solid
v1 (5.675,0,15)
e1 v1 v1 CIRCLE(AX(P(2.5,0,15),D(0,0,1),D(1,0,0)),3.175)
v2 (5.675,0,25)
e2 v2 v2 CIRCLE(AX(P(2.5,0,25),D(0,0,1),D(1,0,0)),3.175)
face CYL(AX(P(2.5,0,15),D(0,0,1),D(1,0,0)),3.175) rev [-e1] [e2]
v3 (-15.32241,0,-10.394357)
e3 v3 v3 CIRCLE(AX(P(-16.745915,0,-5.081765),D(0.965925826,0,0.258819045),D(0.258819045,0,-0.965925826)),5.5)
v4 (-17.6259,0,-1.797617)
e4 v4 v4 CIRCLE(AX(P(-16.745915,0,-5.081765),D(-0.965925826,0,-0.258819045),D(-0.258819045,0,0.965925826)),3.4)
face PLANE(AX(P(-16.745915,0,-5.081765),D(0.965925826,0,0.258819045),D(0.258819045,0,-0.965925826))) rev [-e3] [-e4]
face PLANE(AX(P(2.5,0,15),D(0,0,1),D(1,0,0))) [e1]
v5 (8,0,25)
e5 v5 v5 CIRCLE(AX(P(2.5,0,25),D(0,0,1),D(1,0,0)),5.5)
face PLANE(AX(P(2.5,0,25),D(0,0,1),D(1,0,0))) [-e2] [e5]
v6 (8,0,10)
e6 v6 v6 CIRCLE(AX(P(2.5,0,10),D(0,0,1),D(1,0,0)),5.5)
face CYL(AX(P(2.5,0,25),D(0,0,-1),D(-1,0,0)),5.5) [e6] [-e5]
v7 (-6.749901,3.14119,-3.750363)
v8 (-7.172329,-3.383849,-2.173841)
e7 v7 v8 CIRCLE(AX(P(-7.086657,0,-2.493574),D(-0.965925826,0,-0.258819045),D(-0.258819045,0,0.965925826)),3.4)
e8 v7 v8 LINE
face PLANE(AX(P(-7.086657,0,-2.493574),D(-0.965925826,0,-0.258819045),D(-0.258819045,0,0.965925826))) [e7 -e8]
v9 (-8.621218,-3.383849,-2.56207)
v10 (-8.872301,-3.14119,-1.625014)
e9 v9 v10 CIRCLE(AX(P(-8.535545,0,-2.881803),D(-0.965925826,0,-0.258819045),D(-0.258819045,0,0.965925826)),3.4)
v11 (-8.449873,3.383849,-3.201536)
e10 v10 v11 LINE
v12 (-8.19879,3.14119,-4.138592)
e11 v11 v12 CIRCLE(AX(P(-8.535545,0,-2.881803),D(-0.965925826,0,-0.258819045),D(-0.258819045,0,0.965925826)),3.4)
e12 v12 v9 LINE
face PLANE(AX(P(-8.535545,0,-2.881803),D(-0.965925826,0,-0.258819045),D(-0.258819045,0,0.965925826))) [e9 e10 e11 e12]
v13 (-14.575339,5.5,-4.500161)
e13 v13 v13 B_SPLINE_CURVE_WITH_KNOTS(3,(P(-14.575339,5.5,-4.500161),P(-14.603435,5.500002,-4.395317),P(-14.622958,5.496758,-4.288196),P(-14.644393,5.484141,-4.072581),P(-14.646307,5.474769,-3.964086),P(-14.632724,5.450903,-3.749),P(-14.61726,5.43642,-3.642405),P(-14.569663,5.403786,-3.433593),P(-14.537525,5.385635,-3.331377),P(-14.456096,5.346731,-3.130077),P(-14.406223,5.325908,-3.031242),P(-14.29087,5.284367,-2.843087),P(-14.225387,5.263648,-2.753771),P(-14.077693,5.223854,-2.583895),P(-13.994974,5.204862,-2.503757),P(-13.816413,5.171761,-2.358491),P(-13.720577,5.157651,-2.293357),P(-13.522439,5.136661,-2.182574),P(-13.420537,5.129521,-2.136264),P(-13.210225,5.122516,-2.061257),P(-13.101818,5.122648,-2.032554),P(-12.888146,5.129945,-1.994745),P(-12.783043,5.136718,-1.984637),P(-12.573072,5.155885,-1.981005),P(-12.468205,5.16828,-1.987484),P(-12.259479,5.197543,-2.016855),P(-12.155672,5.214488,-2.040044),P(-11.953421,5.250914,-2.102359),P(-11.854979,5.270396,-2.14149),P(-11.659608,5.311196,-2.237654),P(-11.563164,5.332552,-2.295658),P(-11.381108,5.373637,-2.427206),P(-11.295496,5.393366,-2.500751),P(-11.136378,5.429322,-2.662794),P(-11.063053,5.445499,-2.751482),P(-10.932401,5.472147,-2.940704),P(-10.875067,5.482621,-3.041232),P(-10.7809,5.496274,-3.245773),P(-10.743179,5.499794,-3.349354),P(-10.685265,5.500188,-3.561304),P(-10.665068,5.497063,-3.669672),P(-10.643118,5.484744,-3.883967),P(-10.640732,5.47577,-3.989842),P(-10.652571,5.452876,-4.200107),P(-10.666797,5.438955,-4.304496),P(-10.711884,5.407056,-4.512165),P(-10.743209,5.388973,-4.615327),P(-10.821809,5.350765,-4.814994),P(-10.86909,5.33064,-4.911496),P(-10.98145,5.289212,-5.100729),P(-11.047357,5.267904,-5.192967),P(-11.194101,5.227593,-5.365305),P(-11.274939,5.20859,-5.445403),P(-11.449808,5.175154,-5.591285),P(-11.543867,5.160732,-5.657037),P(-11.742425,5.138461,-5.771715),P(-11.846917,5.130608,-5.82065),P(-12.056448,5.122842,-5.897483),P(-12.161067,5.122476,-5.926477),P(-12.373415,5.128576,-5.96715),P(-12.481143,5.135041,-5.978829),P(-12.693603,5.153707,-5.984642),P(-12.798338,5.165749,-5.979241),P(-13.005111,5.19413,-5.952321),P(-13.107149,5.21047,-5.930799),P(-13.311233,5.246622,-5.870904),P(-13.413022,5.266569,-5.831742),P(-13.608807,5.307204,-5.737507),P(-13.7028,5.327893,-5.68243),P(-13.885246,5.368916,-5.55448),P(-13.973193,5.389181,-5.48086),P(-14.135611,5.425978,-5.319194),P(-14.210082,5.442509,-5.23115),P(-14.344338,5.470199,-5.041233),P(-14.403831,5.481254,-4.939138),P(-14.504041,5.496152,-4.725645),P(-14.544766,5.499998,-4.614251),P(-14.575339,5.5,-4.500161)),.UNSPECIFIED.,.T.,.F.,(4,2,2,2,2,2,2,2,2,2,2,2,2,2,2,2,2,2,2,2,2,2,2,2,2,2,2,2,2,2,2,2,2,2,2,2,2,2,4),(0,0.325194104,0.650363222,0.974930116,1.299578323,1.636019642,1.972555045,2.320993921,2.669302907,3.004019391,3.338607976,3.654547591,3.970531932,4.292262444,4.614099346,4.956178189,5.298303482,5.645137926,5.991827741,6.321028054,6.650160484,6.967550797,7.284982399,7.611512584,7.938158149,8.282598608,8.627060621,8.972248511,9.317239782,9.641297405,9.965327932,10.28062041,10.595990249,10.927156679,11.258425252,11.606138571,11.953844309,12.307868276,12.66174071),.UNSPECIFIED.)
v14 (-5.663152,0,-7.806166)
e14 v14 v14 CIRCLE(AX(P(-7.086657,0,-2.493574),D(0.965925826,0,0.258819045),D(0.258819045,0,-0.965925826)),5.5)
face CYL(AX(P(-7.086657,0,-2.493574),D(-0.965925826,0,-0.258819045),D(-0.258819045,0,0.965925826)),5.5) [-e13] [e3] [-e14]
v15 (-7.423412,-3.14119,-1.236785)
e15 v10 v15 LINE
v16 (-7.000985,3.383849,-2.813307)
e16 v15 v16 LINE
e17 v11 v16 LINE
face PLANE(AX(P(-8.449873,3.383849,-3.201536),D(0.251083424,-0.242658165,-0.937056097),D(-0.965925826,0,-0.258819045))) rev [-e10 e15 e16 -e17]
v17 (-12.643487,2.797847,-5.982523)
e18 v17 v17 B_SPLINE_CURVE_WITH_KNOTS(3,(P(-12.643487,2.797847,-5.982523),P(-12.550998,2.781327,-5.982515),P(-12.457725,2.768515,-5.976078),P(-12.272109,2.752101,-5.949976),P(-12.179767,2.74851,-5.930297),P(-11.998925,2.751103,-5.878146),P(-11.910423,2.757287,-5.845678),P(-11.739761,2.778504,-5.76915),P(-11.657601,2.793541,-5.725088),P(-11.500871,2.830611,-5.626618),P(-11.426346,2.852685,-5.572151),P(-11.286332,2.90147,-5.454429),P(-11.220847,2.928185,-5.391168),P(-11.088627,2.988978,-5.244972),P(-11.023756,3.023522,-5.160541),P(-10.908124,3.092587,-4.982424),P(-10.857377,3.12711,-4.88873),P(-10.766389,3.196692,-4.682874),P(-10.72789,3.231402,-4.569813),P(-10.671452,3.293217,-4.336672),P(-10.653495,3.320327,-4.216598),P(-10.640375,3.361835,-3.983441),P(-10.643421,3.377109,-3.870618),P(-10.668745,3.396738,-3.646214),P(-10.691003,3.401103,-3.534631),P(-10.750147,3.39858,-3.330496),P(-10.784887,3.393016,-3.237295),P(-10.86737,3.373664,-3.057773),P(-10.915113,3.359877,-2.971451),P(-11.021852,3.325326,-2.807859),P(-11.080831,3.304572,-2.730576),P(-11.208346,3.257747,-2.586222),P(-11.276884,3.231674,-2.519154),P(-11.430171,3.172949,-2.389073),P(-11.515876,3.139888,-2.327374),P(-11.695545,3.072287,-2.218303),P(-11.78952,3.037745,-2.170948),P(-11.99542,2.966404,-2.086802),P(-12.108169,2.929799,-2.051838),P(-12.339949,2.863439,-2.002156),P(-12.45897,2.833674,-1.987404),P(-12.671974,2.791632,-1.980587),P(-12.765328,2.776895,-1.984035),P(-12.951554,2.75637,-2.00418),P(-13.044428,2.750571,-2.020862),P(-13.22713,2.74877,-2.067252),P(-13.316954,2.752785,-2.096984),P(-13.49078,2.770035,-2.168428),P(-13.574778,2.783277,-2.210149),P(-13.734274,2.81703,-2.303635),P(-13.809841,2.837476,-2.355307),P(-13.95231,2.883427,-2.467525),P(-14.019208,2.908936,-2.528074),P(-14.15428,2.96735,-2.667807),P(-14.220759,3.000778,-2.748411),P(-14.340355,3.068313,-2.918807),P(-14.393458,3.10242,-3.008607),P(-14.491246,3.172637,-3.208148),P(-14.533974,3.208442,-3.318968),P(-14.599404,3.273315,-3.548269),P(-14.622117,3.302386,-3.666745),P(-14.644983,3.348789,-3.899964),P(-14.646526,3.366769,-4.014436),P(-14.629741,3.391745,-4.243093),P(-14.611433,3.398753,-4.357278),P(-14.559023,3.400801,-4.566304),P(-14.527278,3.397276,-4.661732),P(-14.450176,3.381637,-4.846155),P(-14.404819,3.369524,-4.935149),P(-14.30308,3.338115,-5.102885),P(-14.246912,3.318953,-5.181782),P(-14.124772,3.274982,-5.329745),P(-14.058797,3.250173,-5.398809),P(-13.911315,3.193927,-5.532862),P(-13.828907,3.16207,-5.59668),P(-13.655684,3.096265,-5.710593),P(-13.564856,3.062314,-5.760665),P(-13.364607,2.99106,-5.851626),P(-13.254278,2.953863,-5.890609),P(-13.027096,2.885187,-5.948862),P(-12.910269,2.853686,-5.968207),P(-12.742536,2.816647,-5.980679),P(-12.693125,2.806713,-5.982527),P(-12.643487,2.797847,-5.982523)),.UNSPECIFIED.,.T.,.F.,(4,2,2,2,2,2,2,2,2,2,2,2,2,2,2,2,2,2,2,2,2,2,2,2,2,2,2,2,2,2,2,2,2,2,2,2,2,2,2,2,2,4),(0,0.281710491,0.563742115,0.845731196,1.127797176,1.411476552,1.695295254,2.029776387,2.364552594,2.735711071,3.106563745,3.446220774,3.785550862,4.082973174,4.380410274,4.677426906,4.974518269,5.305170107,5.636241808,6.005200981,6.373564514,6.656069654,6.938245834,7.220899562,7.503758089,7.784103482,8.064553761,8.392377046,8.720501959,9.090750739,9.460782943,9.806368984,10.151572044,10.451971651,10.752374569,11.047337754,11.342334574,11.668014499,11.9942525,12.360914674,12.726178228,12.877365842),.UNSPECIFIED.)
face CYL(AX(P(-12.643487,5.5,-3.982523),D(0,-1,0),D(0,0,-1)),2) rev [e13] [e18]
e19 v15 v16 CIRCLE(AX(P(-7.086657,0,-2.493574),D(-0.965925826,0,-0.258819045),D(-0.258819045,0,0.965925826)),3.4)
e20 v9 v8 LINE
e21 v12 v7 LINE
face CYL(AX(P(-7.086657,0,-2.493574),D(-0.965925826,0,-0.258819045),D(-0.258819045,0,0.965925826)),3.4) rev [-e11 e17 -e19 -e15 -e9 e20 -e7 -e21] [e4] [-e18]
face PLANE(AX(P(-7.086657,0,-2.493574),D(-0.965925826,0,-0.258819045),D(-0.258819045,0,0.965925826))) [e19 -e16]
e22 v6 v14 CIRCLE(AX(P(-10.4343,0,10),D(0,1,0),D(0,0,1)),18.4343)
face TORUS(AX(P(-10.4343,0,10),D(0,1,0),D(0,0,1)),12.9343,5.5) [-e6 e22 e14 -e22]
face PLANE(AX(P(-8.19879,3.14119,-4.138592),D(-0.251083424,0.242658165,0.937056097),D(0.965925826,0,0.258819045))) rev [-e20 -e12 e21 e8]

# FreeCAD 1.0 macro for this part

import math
import FreeCAD as App
import Part
import Sketcher
from FreeCAD import Vector
Q = App.Units.Quantity

doc = App.newDocument("Part")
body = doc.addObject("PartDesign::Body", "Body")

sketch1 = body.newObject("Sketcher::SketchObject", "Sketch")
sketch1.AttachmentSupport = (doc.getObject("XY_Plane"), [""])
sketch1.MapMode = "FlatFace"
sketch1.AttachmentOffset = App.Placement(Vector(0, 0, 25), App.Rotation())
sketch1.addGeometry(Part.Circle(Vector(2.5, 0, 0), Vector(0, 0, 1), 5.5), False)
sketch1.addConstraint([
    Sketcher.Constraint("PointOnObject", 0, 3, -1),
    Sketcher.Constraint("Diameter", 0, Q("11 mm")),
    Sketcher.Constraint("DistanceX", -1, 1, 0, 3, Q("2.5 mm")),
])

sketch2 = body.newObject("Sketcher::SketchObject", "Sketch001")
sketch2.AttachmentSupport = (doc.getObject("XZ_Plane"), [""])
sketch2.MapMode = "FlatFace"
sketch2.addGeometry([
    Part.LineSegment(Vector(2.5, 25, 0), Vector(2.5, 10, 0)),
    Part.ArcOfCircle(Part.Circle(Vector(-10.4343, 10, 0), Vector(0, 0, 1), 12.9343), math.radians(-75), math.radians(0)),
    Part.LineSegment(Vector(-7.086657, -2.493574, 0), Vector(-16.745915, -5.081765, 0)),
], False)
sketch2.addConstraint([
    Sketcher.Constraint("Tangent", 0, 2, 1, 2),
    Sketcher.Constraint("Tangent", 1, 1, 2, 1),
    Sketcher.Constraint("Vertical", 0),
    Sketcher.Constraint("DistanceY", 0, 2, 0, 1, Q("15 mm")),
    Sketcher.Constraint("Angle", 2, Q("-165 deg")),
    Sketcher.Constraint("Distance", 2, Q("10 mm")),
    Sketcher.Constraint("DistanceY", -1, 1, 1, 3, Q("10 mm")),
    Sketcher.Constraint("DistanceX", -1, 1, 0, 1, Q("2.5 mm")),
    Sketcher.Constraint("Radius", 1, Q("12.9343 mm")),
])
doc.recompute()

additivepipe = body.newObject("PartDesign::AdditivePipe", "AdditivePipe")
additivepipe.Profile = sketch1
additivepipe.Spine = (sketch2, ["Edge1", "Edge2", "Edge3"])

sketch3 = body.newObject("Sketcher::SketchObject", "Sketch002")
sketch3.AttachmentSupport = (doc.getObject("XY_Plane"), [""])
sketch3.MapMode = "FlatFace"
sketch3.AttachmentOffset = App.Placement(Vector(0, 0, 25), App.Rotation())
sketch3.addGeometry(Part.Circle(Vector(2.5, 0, 0), Vector(0, 0, 1), 3.175), False)
sketch3.addConstraint([
    Sketcher.Constraint("PointOnObject", 0, 3, -1),
    Sketcher.Constraint("Diameter", 0, Q("6.35 mm")),
    Sketcher.Constraint("DistanceX", -1, 1, 0, 3, Q("2.5 mm")),
])
pocket1 = body.newObject("PartDesign::Pocket", "Pocket")
pocket1.Profile = sketch3
pocket1.Length = 10

sketch4 = body.newObject("Sketcher::SketchObject", "Sketch003")
sketch4.Placement = App.Placement(Vector(-16.894593, 0, -4.526892), App.Rotation(Vector(-0.258819045, 0, 0.965925826), Vector(0, 0.999999999, 0), Vector(-0.965925826, 0, -0.258819045), "ZXY"))
sketch4.addGeometry(Part.Circle(Vector(-0.574446, 0, 0), Vector(0, 0, 1), 3.4), False)
sketch4.addConstraint([
    Sketcher.Constraint("PointOnObject", 0, 3, -1),
    Sketcher.Constraint("Diameter", 0, Q("6.8 mm")),
    Sketcher.Constraint("DistanceX", 0, 3, -1, 1, Q("0.574446 mm")),
])
pocket2 = body.newObject("PartDesign::Pocket", "Pocket001")
pocket2.Profile = sketch4
pocket2.Length = 10

sketch5 = body.newObject("Sketcher::SketchObject", "Sketch004")
sketch5.AttachmentSupport = (doc.getObject("XZ_Plane"), [""])
sketch5.MapMode = "FlatFace"
sketch5.addGeometry(Part.Circle(Vector(-12.643487, -3.982523, 0), Vector(0, 0, 1), 2), False)
sketch5.addConstraint([
    Sketcher.Constraint("Diameter", 0, Q("4 mm")),
    Sketcher.Constraint("DistanceX", 0, 3, -1, 1, Q("12.643487 mm")),
    Sketcher.Constraint("DistanceY", 0, 3, -1, 1, Q("3.982523 mm")),
])
pocket3 = body.newObject("PartDesign::Pocket", "Pocket002")
pocket3.Profile = sketch5
pocket3.Type = "ThroughAll"

sketch6 = body.newObject("Sketcher::SketchObject", "Sketch005")
sketch6.Placement = App.Placement(Vector(-7.235334, 0, -1.938702), App.Rotation(Vector(-0.258819045, 0, 0.965925826), Vector(0, 0.999999999, 0), Vector(-0.965925826, 0, -0.258819045), "ZXY"))
sketch6.addGeometry([
    Part.LineSegment(Vector(0.726678, -3.14119, 0), Vector(-0.905458, 3.383849, 0)),
    Part.ArcOfCircle(Part.Circle(Vector(-0.574446, 0, 0), Vector(0, 0, 1), 3.4), math.radians(95.586961), math.radians(112.5)),
    Part.LineSegment(Vector(-1.87557, 3.14119, 0), Vector(-0.243434, -3.383849, 0)),
    Part.ArcOfCircle(Part.Circle(Vector(-0.574446, 0, 0), Vector(0, 0, 1), 3.4), math.radians(-84.413039), math.radians(-67.5)),
], False)
sketch6.addConstraint([
    Sketcher.Constraint("Coincident", 0, 2, 1, 1),
    Sketcher.Constraint("Coincident", 1, 2, 2, 1),
    Sketcher.Constraint("Coincident", 2, 2, 3, 1),
    Sketcher.Constraint("Coincident", 3, 2, 0, 1),
    Sketcher.Constraint("Coincident", 3, 3, 1, 3),
    Sketcher.Constraint("Equal", 1, 3),
    Sketcher.Constraint("PointOnObject", 1, 3, -1),
    Sketcher.Constraint("Parallel", 0, 2),
    Sketcher.Constraint("Equal", 0, 2),
    Sketcher.Constraint("Radius", 1, Q("3.4 mm")),
    Sketcher.Constraint("Distance", 0, Q("6.726069 mm")),
    Sketcher.Constraint("DistanceY", -1, 1, 0, 2, Q("3.383849 mm")),
    Sketcher.Constraint("DistanceX", 1, 2, -1, 1, Q("1.87557 mm")),
])
pad1 = body.newObject("PartDesign::Pad", "Pad")
pad1.Profile = sketch6
pad1.Length = 1.5

doc.recompute()
